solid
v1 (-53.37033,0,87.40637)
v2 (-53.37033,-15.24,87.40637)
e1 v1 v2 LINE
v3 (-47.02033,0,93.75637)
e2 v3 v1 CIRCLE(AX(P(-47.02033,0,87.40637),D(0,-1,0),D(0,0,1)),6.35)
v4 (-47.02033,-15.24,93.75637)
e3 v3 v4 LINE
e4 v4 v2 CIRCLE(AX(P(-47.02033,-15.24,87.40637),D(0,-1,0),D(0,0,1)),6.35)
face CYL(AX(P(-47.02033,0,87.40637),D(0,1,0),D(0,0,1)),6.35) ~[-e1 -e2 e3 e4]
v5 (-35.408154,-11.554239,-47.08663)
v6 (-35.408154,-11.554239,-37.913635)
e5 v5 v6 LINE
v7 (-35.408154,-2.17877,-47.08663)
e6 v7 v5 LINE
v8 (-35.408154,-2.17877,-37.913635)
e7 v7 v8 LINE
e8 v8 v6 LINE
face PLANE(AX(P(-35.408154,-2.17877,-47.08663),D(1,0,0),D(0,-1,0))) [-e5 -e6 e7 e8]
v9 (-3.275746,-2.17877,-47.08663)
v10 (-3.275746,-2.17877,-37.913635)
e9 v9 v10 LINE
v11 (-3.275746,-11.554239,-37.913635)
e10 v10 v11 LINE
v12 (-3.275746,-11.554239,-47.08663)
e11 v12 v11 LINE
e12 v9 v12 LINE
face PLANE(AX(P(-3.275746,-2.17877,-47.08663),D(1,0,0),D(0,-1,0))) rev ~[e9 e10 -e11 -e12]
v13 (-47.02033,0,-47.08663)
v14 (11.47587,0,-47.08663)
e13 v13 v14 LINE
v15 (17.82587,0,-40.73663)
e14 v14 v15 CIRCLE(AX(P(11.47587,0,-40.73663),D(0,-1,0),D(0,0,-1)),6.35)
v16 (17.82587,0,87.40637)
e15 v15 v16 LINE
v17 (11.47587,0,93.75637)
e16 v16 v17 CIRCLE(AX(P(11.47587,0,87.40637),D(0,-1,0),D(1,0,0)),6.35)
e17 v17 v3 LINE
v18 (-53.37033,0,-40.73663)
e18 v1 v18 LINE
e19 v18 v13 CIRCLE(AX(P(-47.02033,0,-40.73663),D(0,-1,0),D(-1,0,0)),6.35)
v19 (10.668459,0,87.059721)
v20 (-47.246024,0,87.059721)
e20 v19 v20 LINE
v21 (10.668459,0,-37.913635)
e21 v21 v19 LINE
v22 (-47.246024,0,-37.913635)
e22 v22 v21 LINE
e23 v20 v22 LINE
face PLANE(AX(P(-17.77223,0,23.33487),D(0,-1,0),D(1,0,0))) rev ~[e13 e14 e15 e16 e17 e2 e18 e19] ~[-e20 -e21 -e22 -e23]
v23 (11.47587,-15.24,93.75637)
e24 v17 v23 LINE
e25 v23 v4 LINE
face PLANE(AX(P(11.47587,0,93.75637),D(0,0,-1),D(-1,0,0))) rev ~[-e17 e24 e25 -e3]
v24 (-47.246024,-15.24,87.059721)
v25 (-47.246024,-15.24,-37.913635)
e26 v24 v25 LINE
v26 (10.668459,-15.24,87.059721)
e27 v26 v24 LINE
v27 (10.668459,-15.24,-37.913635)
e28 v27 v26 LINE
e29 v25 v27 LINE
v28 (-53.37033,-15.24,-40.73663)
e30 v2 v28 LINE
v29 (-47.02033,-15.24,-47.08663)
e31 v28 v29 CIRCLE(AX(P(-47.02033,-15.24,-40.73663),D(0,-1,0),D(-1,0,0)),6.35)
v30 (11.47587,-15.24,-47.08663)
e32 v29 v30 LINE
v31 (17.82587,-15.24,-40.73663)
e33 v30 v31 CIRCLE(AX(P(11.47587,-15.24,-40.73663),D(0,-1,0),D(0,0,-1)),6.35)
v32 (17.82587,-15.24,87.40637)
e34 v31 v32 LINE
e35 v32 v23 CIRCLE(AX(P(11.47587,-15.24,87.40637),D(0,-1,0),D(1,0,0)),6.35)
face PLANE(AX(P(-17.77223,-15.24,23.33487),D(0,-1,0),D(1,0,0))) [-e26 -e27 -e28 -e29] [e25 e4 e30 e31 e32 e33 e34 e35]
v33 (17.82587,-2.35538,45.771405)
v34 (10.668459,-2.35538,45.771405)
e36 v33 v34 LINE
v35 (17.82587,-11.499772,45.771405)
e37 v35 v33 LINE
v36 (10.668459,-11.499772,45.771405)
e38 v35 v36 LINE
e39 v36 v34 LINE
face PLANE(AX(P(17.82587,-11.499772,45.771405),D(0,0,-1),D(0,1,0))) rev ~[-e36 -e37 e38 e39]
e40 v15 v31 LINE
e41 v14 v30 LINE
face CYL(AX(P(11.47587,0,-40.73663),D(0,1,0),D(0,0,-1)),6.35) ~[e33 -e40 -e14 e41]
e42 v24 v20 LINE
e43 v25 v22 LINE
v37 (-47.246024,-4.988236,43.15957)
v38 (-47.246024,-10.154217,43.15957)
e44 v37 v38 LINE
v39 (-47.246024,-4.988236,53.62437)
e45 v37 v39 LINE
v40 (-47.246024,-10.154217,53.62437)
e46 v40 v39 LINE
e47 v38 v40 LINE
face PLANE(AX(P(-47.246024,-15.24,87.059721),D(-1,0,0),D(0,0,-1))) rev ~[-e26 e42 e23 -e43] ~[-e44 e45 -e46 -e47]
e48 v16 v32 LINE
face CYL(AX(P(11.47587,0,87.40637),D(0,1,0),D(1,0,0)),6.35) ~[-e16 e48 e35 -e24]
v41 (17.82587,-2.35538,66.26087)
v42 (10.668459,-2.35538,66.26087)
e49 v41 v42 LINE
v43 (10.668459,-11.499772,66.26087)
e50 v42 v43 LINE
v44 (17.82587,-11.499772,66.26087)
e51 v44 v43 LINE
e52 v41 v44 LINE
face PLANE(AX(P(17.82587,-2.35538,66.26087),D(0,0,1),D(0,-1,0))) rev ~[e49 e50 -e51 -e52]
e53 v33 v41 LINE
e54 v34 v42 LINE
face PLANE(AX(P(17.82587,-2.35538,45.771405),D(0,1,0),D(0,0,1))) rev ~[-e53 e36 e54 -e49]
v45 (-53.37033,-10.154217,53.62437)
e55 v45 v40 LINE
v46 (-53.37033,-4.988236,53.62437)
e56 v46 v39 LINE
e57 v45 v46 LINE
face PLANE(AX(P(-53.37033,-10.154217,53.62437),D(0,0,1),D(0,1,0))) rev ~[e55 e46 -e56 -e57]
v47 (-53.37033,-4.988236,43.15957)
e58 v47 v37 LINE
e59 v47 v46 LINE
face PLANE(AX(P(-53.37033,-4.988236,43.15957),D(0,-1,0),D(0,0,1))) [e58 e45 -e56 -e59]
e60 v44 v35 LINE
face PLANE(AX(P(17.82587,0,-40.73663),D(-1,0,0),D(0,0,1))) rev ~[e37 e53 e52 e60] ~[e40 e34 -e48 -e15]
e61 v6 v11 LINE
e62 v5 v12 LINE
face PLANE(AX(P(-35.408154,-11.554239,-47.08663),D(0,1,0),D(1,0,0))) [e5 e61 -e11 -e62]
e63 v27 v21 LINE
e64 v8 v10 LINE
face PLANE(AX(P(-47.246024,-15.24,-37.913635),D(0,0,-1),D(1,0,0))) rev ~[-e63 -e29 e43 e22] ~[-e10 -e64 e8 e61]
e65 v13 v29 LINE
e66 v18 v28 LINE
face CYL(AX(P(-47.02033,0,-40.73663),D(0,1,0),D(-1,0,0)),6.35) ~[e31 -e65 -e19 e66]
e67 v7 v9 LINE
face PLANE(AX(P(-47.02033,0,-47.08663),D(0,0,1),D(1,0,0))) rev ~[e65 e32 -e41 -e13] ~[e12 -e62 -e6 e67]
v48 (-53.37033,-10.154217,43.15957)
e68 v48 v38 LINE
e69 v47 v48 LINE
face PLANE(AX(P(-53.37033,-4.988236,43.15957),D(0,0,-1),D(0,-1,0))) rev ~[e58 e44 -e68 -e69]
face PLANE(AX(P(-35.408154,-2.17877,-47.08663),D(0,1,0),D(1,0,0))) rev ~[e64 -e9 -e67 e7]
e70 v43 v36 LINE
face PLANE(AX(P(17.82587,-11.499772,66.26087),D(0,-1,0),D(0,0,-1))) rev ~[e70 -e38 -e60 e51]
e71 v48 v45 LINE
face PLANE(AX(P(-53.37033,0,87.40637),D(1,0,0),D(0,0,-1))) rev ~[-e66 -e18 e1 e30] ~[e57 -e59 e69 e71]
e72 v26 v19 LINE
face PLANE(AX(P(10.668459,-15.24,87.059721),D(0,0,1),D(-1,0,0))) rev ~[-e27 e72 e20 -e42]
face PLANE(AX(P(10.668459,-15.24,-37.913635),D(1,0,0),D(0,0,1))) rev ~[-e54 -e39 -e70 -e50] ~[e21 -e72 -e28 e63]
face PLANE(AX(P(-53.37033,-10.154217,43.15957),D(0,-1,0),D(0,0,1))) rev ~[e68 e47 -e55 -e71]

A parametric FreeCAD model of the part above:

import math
import FreeCAD as App
import Part
import Sketcher
Q = App.Units.Quantity


def add_polygon(sketch, points):
    """Adds a closed chain of lines whose ends are joined by coincident constraints."""
    first, n = sketch.GeometryCount, len(points)
    for a, b in zip(points, points[1:] + points[:1]):
        sketch.addGeometry(Part.LineSegment(App.Vector(*a, 0), App.Vector(*b, 0)), False)
    for i in range(n):
        sketch.addConstraint(Sketcher.Constraint("Coincident", first + i, 2, first + (i + 1) % n, 1))

doc = App.newDocument("Part")
body = doc.addObject("PartDesign::Body", "Body")

sketch1 = body.newObject("Sketcher::SketchObject", "Sketch")
sketch1.AttachmentSupport = (doc.getObject("XZ_Plane"), [""])
sketch1.MapMode = "FlatFace"
sketch1.addGeometry([
    Part.ArcOfCircle(Part.Circle(App.Vector(-47, 87, 0), App.Vector(0, 0, 1), 6), math.radians(90), math.radians(180)),
    Part.LineSegment(App.Vector(-53, 87, 0), App.Vector(-53, -41, 0)),
    Part.ArcOfCircle(Part.Circle(App.Vector(-47, -41, 0), App.Vector(0, 0, 1), 6), math.radians(180), math.radians(270)),
    Part.LineSegment(App.Vector(-47, -47, 0), App.Vector(11, -47, 0)),
    Part.ArcOfCircle(Part.Circle(App.Vector(11, -41, 0), App.Vector(0, 0, 1), 6), math.radians(-90), math.radians(0)),
    Part.LineSegment(App.Vector(18, -41, 0), App.Vector(18, 87, 0)),
    Part.ArcOfCircle(Part.Circle(App.Vector(11, 87, 0), App.Vector(0, 0, 1), 6), math.radians(0), math.radians(90)),
    Part.LineSegment(App.Vector(11, 94, 0), App.Vector(-47, 94, 0)),
], False)
sketch1.addConstraint([
    Sketcher.Constraint("Tangent", 0, 2, 1, 1),
    Sketcher.Constraint("Tangent", 1, 2, 2, 1),
    Sketcher.Constraint("Tangent", 2, 2, 3, 1),
    Sketcher.Constraint("Tangent", 3, 2, 4, 1),
    Sketcher.Constraint("Tangent", 4, 2, 5, 1),
    Sketcher.Constraint("Tangent", 5, 2, 6, 1),
    Sketcher.Constraint("Tangent", 6, 2, 7, 1),
    Sketcher.Constraint("Tangent", 7, 2, 0, 1),
    Sketcher.Constraint("Vertical", 1),
    Sketcher.Constraint("Horizontal", 3),
    Sketcher.Constraint("Vertical", 5),
    Sketcher.Constraint("Horizontal", 7),
    Sketcher.Constraint("Equal", 0, 2),
    Sketcher.Constraint("Equal", 2, 4),
    Sketcher.Constraint("Equal", 4, 6),
    Sketcher.Constraint("Radius", 0, Q("0.25 in")),
    Sketcher.Constraint("DistanceX", 3, 1, 3, 2, Q("2.303 in")),
    Sketcher.Constraint("DistanceY", 1, 2, 1, 1, Q("5.045 in")),
    Sketcher.Constraint("DistanceX", 0, 3, -1, 1, Q("47.02033 mm")),
    Sketcher.Constraint("DistanceY", -1, 1, 0, 3, Q("87.40637 mm")),
])
pad1 = body.newObject("PartDesign::Pad", "Pad")
pad1.Profile = sketch1
pad1.Length = Q("0.6 in")

sketch2 = body.newObject("Sketcher::SketchObject", "Sketch001")
sketch2.AttachmentSupport = (doc.getObject("XZ_Plane"), [""])
sketch2.MapMode = "FlatFace"
sketch2.AttachmentOffset = App.Placement(App.Vector(0, 0, 0.6 * 25.4), App.Rotation())
add_polygon(sketch2, [(11, 87), (-47, 87), (-47, -38), (11, -38)])
sketch2.addConstraint([
    Sketcher.Constraint("Horizontal", 0),
    Sketcher.Constraint("Vertical", 1),
    Sketcher.Constraint("Horizontal", 2),
    Sketcher.Constraint("Vertical", 3),
    Sketcher.Constraint("DistanceX", 0, 2, 0, 1, Q("57.914483 mm")),
    Sketcher.Constraint("DistanceY", 1, 2, 1, 1, Q("124.973357 mm")),
    Sketcher.Constraint("DistanceY", -1, 1, 0, 2, Q("87.059721 mm")),
    Sketcher.Constraint("DistanceX", -1, 1, 2, 2, Q("10.668459 mm")),
])
pocket1 = body.newObject("PartDesign::Pocket", "Pocket")
pocket1.Profile = sketch2
pocket1.Length = Q("1 in")

sketch3 = body.newObject("Sketcher::SketchObject", "Sketch002")
sketch3.AttachmentSupport = (doc.getObject("YZ_Plane"), [""])
sketch3.MapMode = "FlatFace"
sketch3.AttachmentOffset = App.Placement(App.Vector(0, 0, -53.37033), App.Rotation())
add_polygon(sketch3, [(-10, 43), (-10, 54), (-5, 54), (-5, 43)])
sketch3.addConstraint([
    Sketcher.Constraint("Vertical", 0),
    Sketcher.Constraint("Horizontal", 1),
    Sketcher.Constraint("Vertical", 2),
    Sketcher.Constraint("Horizontal", 3),
    Sketcher.Constraint("DistanceY", 0, 1, 0, 2, Q("0.412 in")),
    Sketcher.Constraint("DistanceX", 1, 1, 1, 2, Q("5.165982 mm")),
    Sketcher.Constraint("DistanceY", -1, 1, 0, 2, Q("53.62437 mm")),
    Sketcher.Constraint("DistanceX", 0, 2, -1, 1, Q("10.154217 mm")),
])
pocket2 = body.newObject("PartDesign::Pocket", "Pocket001")
pocket2.Profile = sketch3
pocket2.Length = Q("1 in")
pocket2.Reversed = True

sketch4 = body.newObject("Sketcher::SketchObject", "Sketch003")
sketch4.AttachmentSupport = (doc.getObject("YZ_Plane"), [""])
sketch4.MapMode = "FlatFace"
sketch4.AttachmentOffset = App.Placement(App.Vector(0, 0, 17.82587), App.Rotation())
add_polygon(sketch4, [(-2, 66), (-11, 66), (-11, 46), (-2, 46)])
sketch4.addConstraint([
    Sketcher.Constraint("Horizontal", 0),
    Sketcher.Constraint("Vertical", 1),
    Sketcher.Constraint("Horizontal", 2),
    Sketcher.Constraint("Vertical", 3),
    Sketcher.Constraint("DistanceX", 0, 2, 0, 1, Q("9.144392 mm")),
    Sketcher.Constraint("DistanceY", 1, 2, 1, 1, Q("20.489465 mm")),
    Sketcher.Constraint("DistanceX", 0, 2, -1, 1, Q("11.499772 mm")),
    Sketcher.Constraint("DistanceY", -1, 1, 0, 2, Q("66.26087 mm")),
])
pocket3 = body.newObject("PartDesign::Pocket", "Pocket002")
pocket3.Profile = sketch4
pocket3.Length = Q("1 in")

sketch5 = body.newObject("Sketcher::SketchObject", "Sketch004")
sketch5.AttachmentSupport = (doc.getObject("XY_Plane"), [""])
sketch5.MapMode = "FlatFace"
sketch5.AttachmentOffset = App.Placement(App.Vector(0, 0, -47.08663), App.Rotation())
add_polygon(sketch5, [(-35, -12), (-35, -2), (-3, -2), (-3, -12)])
sketch5.addConstraint([
    Sketcher.Constraint("Vertical", 0),
    Sketcher.Constraint("Horizontal", 1),
    Sketcher.Constraint("Vertical", 2),
    Sketcher.Constraint("Horizontal", 3),
    Sketcher.Constraint("DistanceX", 1, 1, 1, 2, Q("32.132409 mm")),
    Sketcher.Constraint("DistanceY", 0, 1, 0, 2, Q("9.37547 mm")),
    Sketcher.Constraint("DistanceY", 0, 2, -1, 1, Q("2.17877 mm")),
    Sketcher.Constraint("DistanceX", 0, 2, -1, 1, Q("35.408154 mm")),
])
pocket4 = body.newObject("PartDesign::Pocket", "Pocket003")
pocket4.Profile = sketch5
pocket4.Length = Q("1 in")
pocket4.Reversed = True

doc.recompute()
